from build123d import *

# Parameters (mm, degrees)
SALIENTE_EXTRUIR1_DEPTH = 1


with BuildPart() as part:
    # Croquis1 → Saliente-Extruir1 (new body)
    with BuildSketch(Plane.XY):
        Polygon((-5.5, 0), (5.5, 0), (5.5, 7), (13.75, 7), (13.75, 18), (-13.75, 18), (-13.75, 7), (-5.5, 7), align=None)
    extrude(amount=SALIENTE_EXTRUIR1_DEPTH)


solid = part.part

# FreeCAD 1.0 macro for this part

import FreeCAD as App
import Part
import Sketcher
Q = App.Units.Quantity


def add_polygon(sketch, points):
    """Adds a closed chain of lines whose ends are joined by coincident constraints."""
    first, n = sketch.GeometryCount, len(points)
    for a, b in zip(points, points[1:] + points[:1]):
        sketch.addGeometry(Part.LineSegment(App.Vector(*a, 0), App.Vector(*b, 0)), False)
    for i in range(n):
        sketch.addConstraint(Sketcher.Constraint("Coincident", first + i, 2, first + (i + 1) % n, 1))

doc = App.newDocument("Part")
body = doc.addObject("PartDesign::Body", "Body")

sketch1 = body.newObject("Sketcher::SketchObject", "Sketch")
sketch1.AttachmentSupport = (doc.getObject("XY_Plane"), [""])
sketch1.MapMode = "FlatFace"
add_polygon(sketch1, [(-6, 0), (6, 0), (6, 7), (14, 7), (14, 18), (-14, 18), (-14, 7), (-6, 7)])
sketch1.addConstraint(Sketcher.Constraint("Horizontal", 0))
sketch1.addConstraint(Sketcher.Constraint("Vertical", 1))
sketch1.addConstraint(Sketcher.Constraint("Horizontal", 2))
sketch1.addConstraint(Sketcher.Constraint("Vertical", 3))
sketch1.addConstraint(Sketcher.Constraint("Horizontal", 4))
sketch1.addConstraint(Sketcher.Constraint("Vertical", 5))
sketch1.addConstraint(Sketcher.Constraint("Horizontal", 6))
sketch1.addConstraint(Sketcher.Constraint("Vertical", 7))
sketch1.addConstraint(Sketcher.Constraint("Symmetric", 0, 2, 7, 2, -1, 1))
sketch1.addConstraint(Sketcher.Constraint("Symmetric", 2, 2, 5, 2, -2))
sketch1.addConstraint(Sketcher.Constraint("Equal", 0, 3))
sketch1.addConstraint(Sketcher.Constraint("DistanceX", 0, 1, 0, 2, Q("11 mm")))
sketch1.addConstraint(Sketcher.Constraint("DistanceY", 1, 1, 1, 2, Q("7 mm")))
sketch1.addConstraint(Sketcher.Constraint("DistanceX", 4, 2, 4, 1, Q("27.5 mm")))
pad1 = body.newObject("PartDesign::Pad", "Pad")
pad1.Profile = sketch1
pad1.Length = 1

doc.recompute()
